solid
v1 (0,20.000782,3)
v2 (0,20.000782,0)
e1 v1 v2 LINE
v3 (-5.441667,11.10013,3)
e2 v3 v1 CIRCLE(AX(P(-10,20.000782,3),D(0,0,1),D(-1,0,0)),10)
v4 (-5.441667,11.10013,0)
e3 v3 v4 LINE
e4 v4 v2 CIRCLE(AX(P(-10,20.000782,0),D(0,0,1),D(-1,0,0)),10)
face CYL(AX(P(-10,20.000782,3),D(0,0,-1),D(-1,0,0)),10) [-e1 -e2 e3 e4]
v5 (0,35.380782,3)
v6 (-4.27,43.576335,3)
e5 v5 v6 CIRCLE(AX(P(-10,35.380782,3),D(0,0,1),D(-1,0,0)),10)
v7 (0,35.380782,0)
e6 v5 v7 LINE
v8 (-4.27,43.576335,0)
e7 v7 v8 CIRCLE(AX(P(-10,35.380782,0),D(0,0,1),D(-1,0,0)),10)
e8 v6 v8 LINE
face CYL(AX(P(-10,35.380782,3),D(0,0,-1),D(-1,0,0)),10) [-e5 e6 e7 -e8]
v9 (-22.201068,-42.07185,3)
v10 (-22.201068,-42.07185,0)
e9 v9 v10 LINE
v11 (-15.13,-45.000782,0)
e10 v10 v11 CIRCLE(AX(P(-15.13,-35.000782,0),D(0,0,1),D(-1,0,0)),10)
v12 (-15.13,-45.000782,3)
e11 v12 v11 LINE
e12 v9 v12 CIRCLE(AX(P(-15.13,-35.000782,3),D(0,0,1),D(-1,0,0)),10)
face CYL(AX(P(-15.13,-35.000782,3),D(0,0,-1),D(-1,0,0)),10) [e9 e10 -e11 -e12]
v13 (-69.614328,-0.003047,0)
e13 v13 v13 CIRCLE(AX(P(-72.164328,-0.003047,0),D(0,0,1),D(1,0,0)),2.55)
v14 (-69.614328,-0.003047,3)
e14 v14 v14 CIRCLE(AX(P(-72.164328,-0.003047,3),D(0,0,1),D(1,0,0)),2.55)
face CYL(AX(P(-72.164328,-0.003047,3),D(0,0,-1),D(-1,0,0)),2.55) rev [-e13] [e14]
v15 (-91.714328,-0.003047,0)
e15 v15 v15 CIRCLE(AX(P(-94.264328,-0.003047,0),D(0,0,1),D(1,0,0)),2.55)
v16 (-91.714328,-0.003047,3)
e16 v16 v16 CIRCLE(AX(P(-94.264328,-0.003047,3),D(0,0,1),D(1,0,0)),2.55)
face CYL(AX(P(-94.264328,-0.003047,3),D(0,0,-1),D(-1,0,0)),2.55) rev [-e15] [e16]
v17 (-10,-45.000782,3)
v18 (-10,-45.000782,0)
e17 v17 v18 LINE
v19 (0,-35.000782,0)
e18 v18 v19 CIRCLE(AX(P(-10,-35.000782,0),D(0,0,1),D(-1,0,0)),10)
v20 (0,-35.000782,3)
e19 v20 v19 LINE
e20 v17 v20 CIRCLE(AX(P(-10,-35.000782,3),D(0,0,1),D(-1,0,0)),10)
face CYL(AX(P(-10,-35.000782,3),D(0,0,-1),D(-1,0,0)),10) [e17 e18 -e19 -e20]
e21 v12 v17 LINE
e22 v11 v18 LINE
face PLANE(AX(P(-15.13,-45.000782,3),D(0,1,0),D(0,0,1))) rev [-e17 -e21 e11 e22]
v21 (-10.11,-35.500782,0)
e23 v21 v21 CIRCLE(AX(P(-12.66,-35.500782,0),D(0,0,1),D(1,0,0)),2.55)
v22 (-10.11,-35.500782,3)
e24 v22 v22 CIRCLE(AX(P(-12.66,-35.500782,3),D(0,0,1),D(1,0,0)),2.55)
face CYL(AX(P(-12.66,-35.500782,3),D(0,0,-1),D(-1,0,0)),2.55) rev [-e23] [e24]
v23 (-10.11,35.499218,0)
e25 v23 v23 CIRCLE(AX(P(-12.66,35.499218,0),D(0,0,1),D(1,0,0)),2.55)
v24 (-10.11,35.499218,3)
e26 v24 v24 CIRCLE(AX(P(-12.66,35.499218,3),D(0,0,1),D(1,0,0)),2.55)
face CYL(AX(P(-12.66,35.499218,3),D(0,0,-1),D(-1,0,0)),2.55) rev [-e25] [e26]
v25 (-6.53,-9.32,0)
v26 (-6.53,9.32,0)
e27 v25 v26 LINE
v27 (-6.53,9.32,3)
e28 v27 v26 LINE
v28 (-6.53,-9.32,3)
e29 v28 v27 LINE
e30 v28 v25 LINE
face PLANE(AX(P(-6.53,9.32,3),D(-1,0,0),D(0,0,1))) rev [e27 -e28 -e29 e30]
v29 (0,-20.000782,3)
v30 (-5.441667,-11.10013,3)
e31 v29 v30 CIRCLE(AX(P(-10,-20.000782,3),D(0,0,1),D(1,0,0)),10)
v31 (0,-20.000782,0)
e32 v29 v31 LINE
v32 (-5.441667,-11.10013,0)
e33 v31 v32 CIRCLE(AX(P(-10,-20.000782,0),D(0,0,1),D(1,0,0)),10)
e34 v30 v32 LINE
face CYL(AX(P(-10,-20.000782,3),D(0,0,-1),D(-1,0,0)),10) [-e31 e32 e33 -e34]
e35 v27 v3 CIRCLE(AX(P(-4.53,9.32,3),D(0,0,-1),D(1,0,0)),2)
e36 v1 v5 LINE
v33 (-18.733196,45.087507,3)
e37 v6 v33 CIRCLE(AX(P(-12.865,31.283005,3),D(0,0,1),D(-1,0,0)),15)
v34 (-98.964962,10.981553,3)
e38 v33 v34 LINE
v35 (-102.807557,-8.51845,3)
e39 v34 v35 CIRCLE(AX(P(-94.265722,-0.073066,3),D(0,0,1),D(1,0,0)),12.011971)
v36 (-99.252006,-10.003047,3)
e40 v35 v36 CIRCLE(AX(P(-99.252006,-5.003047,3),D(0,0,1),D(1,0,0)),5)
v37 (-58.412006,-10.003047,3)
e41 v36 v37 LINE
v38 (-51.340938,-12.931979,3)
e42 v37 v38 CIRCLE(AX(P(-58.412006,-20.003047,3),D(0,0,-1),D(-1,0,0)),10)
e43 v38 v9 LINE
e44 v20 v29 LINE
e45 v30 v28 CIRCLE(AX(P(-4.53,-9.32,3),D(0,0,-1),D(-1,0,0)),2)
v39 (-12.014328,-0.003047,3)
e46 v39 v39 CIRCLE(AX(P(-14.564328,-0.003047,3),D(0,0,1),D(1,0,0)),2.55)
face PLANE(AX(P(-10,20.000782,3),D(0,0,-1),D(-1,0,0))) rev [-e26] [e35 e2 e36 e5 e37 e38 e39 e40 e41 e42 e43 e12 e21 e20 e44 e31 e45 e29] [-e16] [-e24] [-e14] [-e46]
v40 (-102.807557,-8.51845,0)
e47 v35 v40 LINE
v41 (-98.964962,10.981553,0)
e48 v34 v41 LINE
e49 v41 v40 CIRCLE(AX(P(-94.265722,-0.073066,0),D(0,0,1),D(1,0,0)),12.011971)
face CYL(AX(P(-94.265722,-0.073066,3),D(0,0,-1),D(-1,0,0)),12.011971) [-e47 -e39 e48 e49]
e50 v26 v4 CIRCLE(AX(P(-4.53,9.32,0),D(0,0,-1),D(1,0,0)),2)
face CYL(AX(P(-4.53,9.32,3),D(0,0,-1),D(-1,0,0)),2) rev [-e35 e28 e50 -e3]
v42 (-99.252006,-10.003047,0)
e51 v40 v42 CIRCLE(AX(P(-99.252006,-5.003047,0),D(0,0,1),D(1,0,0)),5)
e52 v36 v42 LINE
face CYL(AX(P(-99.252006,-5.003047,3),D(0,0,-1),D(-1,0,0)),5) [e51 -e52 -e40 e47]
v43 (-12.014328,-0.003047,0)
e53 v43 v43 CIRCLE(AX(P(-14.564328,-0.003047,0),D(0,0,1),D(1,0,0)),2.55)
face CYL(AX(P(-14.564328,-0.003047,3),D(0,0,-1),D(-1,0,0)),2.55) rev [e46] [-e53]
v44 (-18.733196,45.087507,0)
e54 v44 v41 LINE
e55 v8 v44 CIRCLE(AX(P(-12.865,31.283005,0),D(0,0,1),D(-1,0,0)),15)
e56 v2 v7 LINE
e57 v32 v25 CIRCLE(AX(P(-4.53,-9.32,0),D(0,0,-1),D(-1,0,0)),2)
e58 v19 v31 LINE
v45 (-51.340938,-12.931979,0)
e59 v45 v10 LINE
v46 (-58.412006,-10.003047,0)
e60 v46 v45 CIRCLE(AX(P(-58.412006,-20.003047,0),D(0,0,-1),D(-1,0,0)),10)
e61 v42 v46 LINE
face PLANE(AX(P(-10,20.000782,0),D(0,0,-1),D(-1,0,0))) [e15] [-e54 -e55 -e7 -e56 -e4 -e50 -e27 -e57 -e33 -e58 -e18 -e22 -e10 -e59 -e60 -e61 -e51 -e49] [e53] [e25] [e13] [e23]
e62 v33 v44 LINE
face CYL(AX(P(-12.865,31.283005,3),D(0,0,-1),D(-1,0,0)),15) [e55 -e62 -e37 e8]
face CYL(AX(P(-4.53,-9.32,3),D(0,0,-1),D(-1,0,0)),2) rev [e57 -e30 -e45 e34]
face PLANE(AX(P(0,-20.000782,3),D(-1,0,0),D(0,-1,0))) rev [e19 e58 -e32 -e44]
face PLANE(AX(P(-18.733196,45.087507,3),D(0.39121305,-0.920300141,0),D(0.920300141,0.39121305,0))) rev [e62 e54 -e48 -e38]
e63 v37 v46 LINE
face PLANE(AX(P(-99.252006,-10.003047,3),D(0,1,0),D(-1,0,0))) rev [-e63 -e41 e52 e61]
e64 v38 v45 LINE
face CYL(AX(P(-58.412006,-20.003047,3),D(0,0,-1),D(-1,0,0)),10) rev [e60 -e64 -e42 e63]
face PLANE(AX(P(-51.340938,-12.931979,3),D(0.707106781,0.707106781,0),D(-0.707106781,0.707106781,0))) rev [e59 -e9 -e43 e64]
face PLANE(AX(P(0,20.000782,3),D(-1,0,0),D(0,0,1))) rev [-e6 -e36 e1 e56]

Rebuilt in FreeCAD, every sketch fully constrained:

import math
import FreeCAD as App
import Part
import Sketcher
Q = App.Units.Quantity

doc = App.newDocument("Part")
params = doc.addObject("Spreadsheet::Sheet", "Params")
for row, (alias, value) in enumerate([
    ("sketch1_radius", "10 mm"),
    ("sketch1_radius2", "15 mm"),
    ("sketch1_radius3", "5 mm"),
    ("sketch1_radius4", "2 mm"),
    ("sketch1_diameter", "5.1 mm"),
    ("pad1_length", "3 mm"),
], start=1):
    params.set(f"A{row}", alias)
    params.set(f"B{row}", "=" + value)
    params.setAlias(f"B{row}", alias)

body = doc.addObject("PartDesign::Body", "Body")

# Sketch on XY plane
sketch1 = doc.addObject("Sketcher::SketchObject", "Sketch")
body.addObject(sketch1)
sketch1.AttachmentSupport = (doc.XY_Plane, [""])
sketch1.MapMode = "FlatFace"
sketch1.addGeometry([
    Part.LineSegment(App.Vector(0, 20.000782, 0), App.Vector(0, 35.380782, 0)),  # 0
    Part.ArcOfCircle(Part.Circle(App.Vector(-10, 35.380782, 0), App.Vector(0, 0, 1), 10), math.radians(0), math.radians(55.040309)),  # 1
    Part.ArcOfCircle(Part.Circle(App.Vector(-12.865, 31.283005, 0), App.Vector(0, 0, 1), 15), math.radians(55.040309), math.radians(113.03)),  # 2
    Part.LineSegment(App.Vector(-18.733196, 45.087507, 0), App.Vector(-98.964962, 10.981553, 0)),  # 3
    Part.ArcOfCircle(Part.Circle(App.Vector(-94.265722, -0.073066, 0), App.Vector(0, 0, 1), 12.011971), math.radians(113.03), math.radians(224.674689)),  # 4
    Part.ArcOfCircle(Part.Circle(App.Vector(-99.252006, -5.003047, 0), App.Vector(0, 0, 1), 5), math.radians(-135.325311), math.radians(-90)),  # 5
    Part.LineSegment(App.Vector(-99.252006, -10.003047, 0), App.Vector(-58.412006, -10.003047, 0)),  # 6
    Part.ArcOfCircle(Part.Circle(App.Vector(-58.412006, -20.003047, 0), App.Vector(0, 0, 1), 10), math.radians(45), math.radians(90)),  # 7
    Part.LineSegment(App.Vector(-51.340938, -12.931979, 0), App.Vector(-22.201068, -42.07185, 0)),  # 8
    Part.ArcOfCircle(Part.Circle(App.Vector(-15.13, -35.000782, 0), App.Vector(0, 0, 1), 10), math.radians(-135), math.radians(-90)),  # 9
    Part.LineSegment(App.Vector(-15.13, -45.000782, 0), App.Vector(-10, -45.000782, 0)),  # 10
    Part.ArcOfCircle(Part.Circle(App.Vector(-10, -35.000782, 0), App.Vector(0, 0, 1), 10), math.radians(-90), math.radians(0)),  # 11
    Part.LineSegment(App.Vector(0, -35.000782, 0), App.Vector(0, -20.000782, 0)),  # 12
    Part.ArcOfCircle(Part.Circle(App.Vector(-10, -20.000782, 0), App.Vector(0, 0, 1), 10), math.radians(0), math.radians(62.881435)),  # 13
    Part.ArcOfCircle(Part.Circle(App.Vector(-4.53, -9.32, 0), App.Vector(0, 0, 1), 2), math.radians(180), math.radians(242.881435)),  # 14
    Part.LineSegment(App.Vector(-6.53, -9.32, 0), App.Vector(-6.53, 9.32, 0)),  # 15
    Part.ArcOfCircle(Part.Circle(App.Vector(-4.53, 9.32, 0), App.Vector(0, 0, 1), 2), math.radians(117.118565), math.radians(180)),  # 16
    Part.ArcOfCircle(Part.Circle(App.Vector(-10, 20.000782, 0), App.Vector(0, 0, 1), 10), math.radians(-62.881435), math.radians(0)),  # 17
    Part.Circle(App.Vector(-94.264328, -0.003047, 0), App.Vector(0, 0, 1), 2.55),  # 18
    Part.Circle(App.Vector(-72.164328, -0.003047, 0), App.Vector(0, 0, 1), 2.55),  # 19
    Part.Circle(App.Vector(-12.66, -35.500782, 0), App.Vector(0, 0, 1), 2.55),  # 20
    Part.Circle(App.Vector(-14.564328, -0.003047, 0), App.Vector(0, 0, 1), 2.55),  # 21
    Part.Circle(App.Vector(-12.66, 35.499218, 0), App.Vector(0, 0, 1), 2.55),  # 22
], False)
sketch1.addConstraint([
    Sketcher.Constraint("Tangent", 0, 2, 1, 1),
    Sketcher.Constraint("Tangent", 1, 2, 2, 1),
    Sketcher.Constraint("Tangent", 2, 2, 3, 1),
    Sketcher.Constraint("Tangent", 3, 2, 4, 1),
    Sketcher.Constraint("Tangent", 4, 2, 5, 1),
    Sketcher.Constraint("Tangent", 5, 2, 6, 1),
    Sketcher.Constraint("Tangent", 6, 2, 7, 2),
    Sketcher.Constraint("Tangent", 7, 1, 8, 1),
    Sketcher.Constraint("Tangent", 8, 2, 9, 1),
    Sketcher.Constraint("Tangent", 9, 2, 10, 1),
    Sketcher.Constraint("Tangent", 10, 2, 11, 1),
    Sketcher.Constraint("Tangent", 11, 2, 12, 1),
    Sketcher.Constraint("Tangent", 12, 2, 13, 1),
    Sketcher.Constraint("Tangent", 13, 2, 14, 2),
    Sketcher.Constraint("Tangent", 14, 1, 15, 1),
    Sketcher.Constraint("Tangent", 15, 2, 16, 2),
    Sketcher.Constraint("Tangent", 16, 1, 17, 1),
    Sketcher.Constraint("Tangent", 17, 2, 0, 1),
    Sketcher.Constraint("Vertical", 0),
    Sketcher.Constraint("Horizontal", 6),
    Sketcher.Constraint("Horizontal", 10),
    Sketcher.Constraint("Vertical", 12),
    Sketcher.Constraint("Vertical", 15),
    Sketcher.Constraint("Equal", 1, 7),
    Sketcher.Constraint("Equal", 7, 9),
    Sketcher.Constraint("Equal", 9, 11),
    Sketcher.Constraint("Equal", 11, 13),
    Sketcher.Constraint("Equal", 14, 16),
    Sketcher.Constraint("Equal", 13, 17),
    Sketcher.Constraint("Equal", 18, 19),
    Sketcher.Constraint("Equal", 19, 20),
    Sketcher.Constraint("Equal", 20, 21),
    Sketcher.Constraint("Equal", 21, 22),
    Sketcher.Constraint("Symmetric", 12, 2, 17, 2, -1, 1),
    Sketcher.Constraint("PointOnObject", 0, 2, -2),
    Sketcher.Constraint("Horizontal", 18, 3, 19, 3),
    Sketcher.Constraint("Horizontal", 19, 3, 21, 3),
    Sketcher.Constraint("Vertical", 20, 3, 22, 3),
    Sketcher.Constraint("Radius", 1, Q("10 mm")),
    Sketcher.Constraint("Radius", 2, Q("15 mm")),
    Sketcher.Constraint("Radius", 5, Q("5 mm")),
    Sketcher.Constraint("Radius", 14, Q("2 mm")),
    Sketcher.Constraint("Diameter", 18, Q("5.1 mm")),
    Sketcher.Constraint("DistanceY", 12, 1, 12, 2, Q("15 mm")),
    Sketcher.Constraint("Angle", 8, Q("-45 deg")),
    Sketcher.Constraint("DistanceY", 5, 3, 18, 3, Q("5 mm")),
    Sketcher.Constraint("DistanceX", 6, 1, 6, 2, Q("40.84 mm")),
    Sketcher.Constraint("DistanceX", 10, 1, 10, 2, Q("5.13 mm")),
    Sketcher.Constraint("DistanceY", 0, 1, 0, 2, Q("15.38 mm")),
    Sketcher.Constraint("DistanceY", 15, 1, 15, 2, Q("18.64 mm")),
    Sketcher.Constraint("Angle", 3, Q("-156.97 deg")),
    Sketcher.Constraint("DistanceX", 9, 3, 14, 3, Q("10.6 mm")),
    Sketcher.Constraint("DistanceX", 18, 3, 19, 3, Q("22.1 mm")),
    Sketcher.Constraint("DistanceY", 20, 3, 9, 3, Q("0.5 mm")),
    Sketcher.Constraint("Distance", 3, Q("87.18 mm")),
    Sketcher.Constraint("Distance", 8, Q("41.21 mm")),
    Sketcher.Constraint("DistanceX", 20, 3, -1, 1, Q("12.66 mm")),
    Sketcher.Constraint("DistanceX", 1, 2, -1, 1, Q("4.27 mm")),
    Sketcher.Constraint("DistanceX", 18, 3, -1, 1, Q("94.264328 mm")),
    Sketcher.Constraint("DistanceX", 21, 3, -1, 1, Q("14.564328 mm")),
    Sketcher.Constraint("DistanceY", -1, 1, 22, 3, Q("35.499218 mm")),
])
sketch1.setExpression("Constraints[38]", "Params.sketch1_radius")
sketch1.setExpression("Constraints[39]", "Params.sketch1_radius2")
sketch1.setExpression("Constraints[40]", "Params.sketch1_radius3")
sketch1.setExpression("Constraints[41]", "Params.sketch1_radius4")
sketch1.setExpression("Constraints[42]", "Params.sketch1_diameter")
pad1 = doc.addObject("PartDesign::Pad", "Pad")
body.addObject(pad1)
pad1.Profile = sketch1
pad1.setExpression("Length", "Params.pad1_length")

doc.recompute()
